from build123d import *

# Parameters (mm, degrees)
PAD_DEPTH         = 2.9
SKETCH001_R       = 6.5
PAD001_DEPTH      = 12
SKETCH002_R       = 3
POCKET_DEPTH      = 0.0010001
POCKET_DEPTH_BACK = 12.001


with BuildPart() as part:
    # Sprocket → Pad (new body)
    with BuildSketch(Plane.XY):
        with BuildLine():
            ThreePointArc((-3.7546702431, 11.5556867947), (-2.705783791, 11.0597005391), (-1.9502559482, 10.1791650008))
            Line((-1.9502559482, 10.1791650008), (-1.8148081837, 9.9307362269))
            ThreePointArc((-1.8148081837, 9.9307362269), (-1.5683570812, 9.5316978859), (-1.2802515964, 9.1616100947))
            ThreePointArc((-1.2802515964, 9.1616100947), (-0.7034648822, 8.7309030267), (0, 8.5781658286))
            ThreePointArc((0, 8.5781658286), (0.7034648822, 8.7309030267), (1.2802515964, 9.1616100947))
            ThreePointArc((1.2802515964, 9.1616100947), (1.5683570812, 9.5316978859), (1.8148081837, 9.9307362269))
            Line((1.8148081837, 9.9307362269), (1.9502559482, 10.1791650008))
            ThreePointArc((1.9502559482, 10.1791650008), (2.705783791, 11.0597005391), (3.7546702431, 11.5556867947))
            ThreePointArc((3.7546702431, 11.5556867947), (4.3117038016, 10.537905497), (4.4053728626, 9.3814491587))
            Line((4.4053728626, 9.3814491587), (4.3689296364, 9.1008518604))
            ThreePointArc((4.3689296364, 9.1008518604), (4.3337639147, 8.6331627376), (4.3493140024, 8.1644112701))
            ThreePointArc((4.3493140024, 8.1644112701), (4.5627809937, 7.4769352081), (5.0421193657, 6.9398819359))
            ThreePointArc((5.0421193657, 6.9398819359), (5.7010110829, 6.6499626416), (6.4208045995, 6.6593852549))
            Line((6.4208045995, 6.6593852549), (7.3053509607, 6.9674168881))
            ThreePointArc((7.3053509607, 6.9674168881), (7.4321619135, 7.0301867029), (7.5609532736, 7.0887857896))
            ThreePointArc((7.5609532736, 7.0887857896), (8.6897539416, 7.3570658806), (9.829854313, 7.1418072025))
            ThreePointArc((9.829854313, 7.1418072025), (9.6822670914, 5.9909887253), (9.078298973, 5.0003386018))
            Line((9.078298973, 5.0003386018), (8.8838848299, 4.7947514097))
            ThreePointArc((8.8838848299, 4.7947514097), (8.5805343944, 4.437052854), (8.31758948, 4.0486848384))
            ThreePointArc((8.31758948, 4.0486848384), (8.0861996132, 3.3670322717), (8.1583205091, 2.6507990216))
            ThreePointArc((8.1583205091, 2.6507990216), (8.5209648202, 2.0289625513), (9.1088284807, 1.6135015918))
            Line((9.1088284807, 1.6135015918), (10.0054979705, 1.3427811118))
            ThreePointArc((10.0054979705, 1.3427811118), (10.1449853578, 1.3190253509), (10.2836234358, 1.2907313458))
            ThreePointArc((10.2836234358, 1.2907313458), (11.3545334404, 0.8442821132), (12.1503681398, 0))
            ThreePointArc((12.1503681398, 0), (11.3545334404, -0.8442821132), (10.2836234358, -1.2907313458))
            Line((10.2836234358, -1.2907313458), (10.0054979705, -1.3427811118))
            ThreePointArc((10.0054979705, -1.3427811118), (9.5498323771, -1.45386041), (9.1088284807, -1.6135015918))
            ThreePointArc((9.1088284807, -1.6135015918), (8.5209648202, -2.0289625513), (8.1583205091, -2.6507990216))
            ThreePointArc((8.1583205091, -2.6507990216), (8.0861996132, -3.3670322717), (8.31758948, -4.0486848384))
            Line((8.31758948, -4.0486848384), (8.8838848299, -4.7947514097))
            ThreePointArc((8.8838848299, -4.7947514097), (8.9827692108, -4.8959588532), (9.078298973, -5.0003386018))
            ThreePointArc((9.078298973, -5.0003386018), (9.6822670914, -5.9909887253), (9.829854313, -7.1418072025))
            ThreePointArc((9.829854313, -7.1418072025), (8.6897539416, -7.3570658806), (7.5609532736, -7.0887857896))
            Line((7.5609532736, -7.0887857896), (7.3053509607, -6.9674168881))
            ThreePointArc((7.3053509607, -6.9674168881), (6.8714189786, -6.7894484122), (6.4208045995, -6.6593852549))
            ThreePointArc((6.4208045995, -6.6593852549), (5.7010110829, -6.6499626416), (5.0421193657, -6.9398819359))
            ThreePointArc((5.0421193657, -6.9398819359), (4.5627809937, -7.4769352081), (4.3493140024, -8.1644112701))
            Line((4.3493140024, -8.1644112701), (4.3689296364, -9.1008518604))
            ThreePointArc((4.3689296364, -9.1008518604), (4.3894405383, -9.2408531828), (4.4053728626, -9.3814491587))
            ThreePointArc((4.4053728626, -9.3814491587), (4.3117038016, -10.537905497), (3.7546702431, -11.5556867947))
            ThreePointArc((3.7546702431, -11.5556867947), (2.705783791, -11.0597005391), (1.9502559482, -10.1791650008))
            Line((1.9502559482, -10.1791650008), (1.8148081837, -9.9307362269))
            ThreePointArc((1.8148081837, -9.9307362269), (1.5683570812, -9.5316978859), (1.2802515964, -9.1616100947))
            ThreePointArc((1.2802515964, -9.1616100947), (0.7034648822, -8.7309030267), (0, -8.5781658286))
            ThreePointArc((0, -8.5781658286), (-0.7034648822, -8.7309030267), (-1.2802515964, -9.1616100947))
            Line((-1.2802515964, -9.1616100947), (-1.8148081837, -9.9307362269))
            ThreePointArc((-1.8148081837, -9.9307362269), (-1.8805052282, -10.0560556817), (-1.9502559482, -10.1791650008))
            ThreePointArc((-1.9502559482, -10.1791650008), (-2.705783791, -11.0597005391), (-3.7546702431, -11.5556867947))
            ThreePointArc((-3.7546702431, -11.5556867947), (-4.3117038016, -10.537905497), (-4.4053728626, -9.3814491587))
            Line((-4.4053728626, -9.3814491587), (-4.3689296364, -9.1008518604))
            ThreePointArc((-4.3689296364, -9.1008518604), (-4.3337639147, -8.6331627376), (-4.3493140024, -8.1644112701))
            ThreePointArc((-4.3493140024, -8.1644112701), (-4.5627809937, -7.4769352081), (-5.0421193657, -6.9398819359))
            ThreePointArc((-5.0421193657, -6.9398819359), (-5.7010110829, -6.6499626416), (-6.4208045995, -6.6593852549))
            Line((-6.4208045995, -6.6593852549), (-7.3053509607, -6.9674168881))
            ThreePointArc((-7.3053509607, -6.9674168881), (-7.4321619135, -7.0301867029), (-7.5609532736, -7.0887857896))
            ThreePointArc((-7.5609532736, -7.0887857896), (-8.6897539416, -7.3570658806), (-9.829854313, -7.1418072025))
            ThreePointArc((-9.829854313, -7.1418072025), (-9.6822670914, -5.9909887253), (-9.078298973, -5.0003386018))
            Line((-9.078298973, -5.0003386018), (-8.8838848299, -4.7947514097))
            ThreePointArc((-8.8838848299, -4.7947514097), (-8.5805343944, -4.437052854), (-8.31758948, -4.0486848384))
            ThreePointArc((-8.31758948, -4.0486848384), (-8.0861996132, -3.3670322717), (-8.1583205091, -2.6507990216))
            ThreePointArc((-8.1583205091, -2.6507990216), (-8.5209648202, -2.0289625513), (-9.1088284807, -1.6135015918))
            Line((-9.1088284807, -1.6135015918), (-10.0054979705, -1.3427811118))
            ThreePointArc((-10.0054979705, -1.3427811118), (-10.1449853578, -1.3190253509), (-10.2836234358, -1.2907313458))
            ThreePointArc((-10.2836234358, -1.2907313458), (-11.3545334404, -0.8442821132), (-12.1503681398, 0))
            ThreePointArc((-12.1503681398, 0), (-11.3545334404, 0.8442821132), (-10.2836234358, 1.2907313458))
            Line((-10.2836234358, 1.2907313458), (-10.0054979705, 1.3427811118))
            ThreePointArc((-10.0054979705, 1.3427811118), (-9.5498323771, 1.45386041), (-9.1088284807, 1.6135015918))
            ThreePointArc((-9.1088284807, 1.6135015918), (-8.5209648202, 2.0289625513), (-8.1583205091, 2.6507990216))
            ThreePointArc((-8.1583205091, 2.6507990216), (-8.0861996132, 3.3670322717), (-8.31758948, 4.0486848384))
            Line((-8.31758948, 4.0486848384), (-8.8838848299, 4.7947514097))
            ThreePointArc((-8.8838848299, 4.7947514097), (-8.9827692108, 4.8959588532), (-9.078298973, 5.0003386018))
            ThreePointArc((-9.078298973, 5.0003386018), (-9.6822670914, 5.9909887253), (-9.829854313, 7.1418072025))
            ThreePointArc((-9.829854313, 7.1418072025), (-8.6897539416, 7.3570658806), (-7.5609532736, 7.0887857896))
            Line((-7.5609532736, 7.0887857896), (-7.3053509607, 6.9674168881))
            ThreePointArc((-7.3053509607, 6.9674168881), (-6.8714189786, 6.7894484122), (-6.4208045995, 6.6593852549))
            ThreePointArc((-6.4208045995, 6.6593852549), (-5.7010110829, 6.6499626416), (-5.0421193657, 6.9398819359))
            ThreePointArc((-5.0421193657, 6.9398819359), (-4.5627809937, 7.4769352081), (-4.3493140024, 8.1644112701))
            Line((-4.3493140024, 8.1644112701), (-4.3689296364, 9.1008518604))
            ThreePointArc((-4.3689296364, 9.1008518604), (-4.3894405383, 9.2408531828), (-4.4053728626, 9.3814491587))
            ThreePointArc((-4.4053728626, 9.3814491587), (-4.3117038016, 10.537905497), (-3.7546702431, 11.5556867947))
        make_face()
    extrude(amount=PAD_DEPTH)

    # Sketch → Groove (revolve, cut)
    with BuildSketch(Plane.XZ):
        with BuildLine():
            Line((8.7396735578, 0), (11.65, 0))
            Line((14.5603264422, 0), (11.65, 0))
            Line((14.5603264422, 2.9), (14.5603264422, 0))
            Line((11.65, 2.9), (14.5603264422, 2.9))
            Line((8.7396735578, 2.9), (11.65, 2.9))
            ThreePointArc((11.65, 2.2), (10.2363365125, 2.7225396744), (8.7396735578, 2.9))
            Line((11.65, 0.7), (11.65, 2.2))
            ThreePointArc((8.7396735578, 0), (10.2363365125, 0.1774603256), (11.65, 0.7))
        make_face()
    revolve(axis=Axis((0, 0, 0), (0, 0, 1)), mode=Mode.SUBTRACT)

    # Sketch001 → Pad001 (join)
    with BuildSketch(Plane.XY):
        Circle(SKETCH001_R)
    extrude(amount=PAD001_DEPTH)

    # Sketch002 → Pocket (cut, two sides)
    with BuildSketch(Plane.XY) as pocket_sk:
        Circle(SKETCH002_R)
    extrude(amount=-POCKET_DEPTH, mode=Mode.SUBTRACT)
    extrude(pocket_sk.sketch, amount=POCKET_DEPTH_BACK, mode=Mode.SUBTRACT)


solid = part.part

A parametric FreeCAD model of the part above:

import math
import FreeCAD as App
import Part
import Sketcher
from FreeCAD import Vector
Q = App.Units.Quantity

doc = App.newDocument("Part")
body = doc.addObject("PartDesign::Body", "Body")

sketch1 = doc.addObject("Sketcher::SketchObject", "Sketch")
body.addObject(sketch1)
sketch1.AttachmentSupport = (doc.XY_Plane, [""])
sketch1.MapMode = "FlatFace"
sketch1.addGeometry(Part.ArcOfCircle(Part.Circle(Vector(-4.39, 8.85, 0), Vector(0, 0, 1), 2.78), math.radians(29), math.radians(77)), False)
sketch1.addGeometry(Part.ArcOfCircle(Part.Circle(Vector(-1.65, 9.74, 0), Vector(0, 0, 1), 2.78), math.radians(139), math.radians(187)), False)
sketch1.addGeometry(Part.ArcOfCircle(Part.Circle(Vector(-0.09, 9.8, 0), Vector(0, 0, 1), 4.34), math.radians(-174.47), math.radians(-170.73)), False)
sketch1.addGeometry(Part.LineSegment(Vector(-4.37, 9.1, 0), Vector(-4.35, 8.16, 0)), False)
sketch1.addGeometry(Part.ArcOfCircle(Part.Circle(Vector(-6.04, 8.31, 0), Vector(0, 0, 1), 1.7), math.radians(-54), math.radians(-5)), False)
sketch1.addGeometry(Part.ArcOfCircle(Part.Circle(Vector(-6.04, 8.31, 0), Vector(0, 0, 1), 1.7), math.radians(-103), math.radians(-54)), False)
sketch1.addGeometry(Part.ArcOfCircle(Part.Circle(Vector(-5.45, 10.88, 0), Vector(0, 0, 1), 4.34), math.radians(-115.4), math.radians(-103)), False)
sketch1.addGeometry(Part.LineSegment(Vector(-7.31, 6.97, 0), Vector(-7.56, 7.09, 0)), False)
sketch1.addGeometry(Part.ArcOfCircle(Part.Circle(Vector(-8.75, 4.57, 0), Vector(0, 0, 1), 2.78), math.radians(65), math.radians(113)), False)
sketch1.addGeometry(Part.ArcOfCircle(Part.Circle(Vector(-7.06, 6.91, 0), Vector(0, 0, 1), 2.78), math.radians(175), math.radians(223)), False)
sketch1.addGeometry(Part.ArcOfCircle(Part.Circle(Vector(-5.83, 7.88, 0), Vector(0, 0, 1), 4.34), math.radians(-138.47), math.radians(-134.73)), False)
sketch1.addGeometry(Part.LineSegment(Vector(-8.88, 4.79, 0), Vector(-8.32, 4.05, 0)), False)
sketch1.addGeometry(Part.ArcOfCircle(Part.Circle(Vector(-9.77, 3.17, 0), Vector(0, 0, 1), 1.7), math.radians(-18), math.radians(31)), False)
sketch1.addGeometry(Part.ArcOfCircle(Part.Circle(Vector(-9.77, 3.17, 0), Vector(0, 0, 1), 1.7), math.radians(-67), math.radians(-18)), False)
sketch1.addGeometry(Part.ArcOfCircle(Part.Circle(Vector(-10.8, 5.61, 0), Vector(0, 0, 1), 4.34), math.radians(-79.4), math.radians(-67)), False)
sketch1.addGeometry(Part.LineSegment(Vector(-10.01, 1.34, 0), Vector(-10.28, 1.29, 0)), False)
sketch1.addGeometry(Part.ArcOfCircle(Part.Circle(Vector(-9.77, -1.45, 0), Vector(0, 0, 1), 2.78), math.radians(101), math.radians(149)), False)
sketch1.addGeometry(Part.ArcOfCircle(Part.Circle(Vector(-9.77, 1.45, 0), Vector(0, 0, 1), 2.78), math.radians(-149), math.radians(-101)), False)
sketch1.addGeometry(Part.ArcOfCircle(Part.Circle(Vector(-9.35, 2.94, 0), Vector(0, 0, 1), 4.34), math.radians(-102.47), math.radians(-98.73)), False)
sketch1.addGeometry(Part.LineSegment(Vector(-10.01, -1.34, 0), Vector(-9.11, -1.61, 0)), False)
sketch1.addGeometry(Part.ArcOfCircle(Part.Circle(Vector(-9.77, -3.17, 0), Vector(0, 0, 1), 1.7), math.radians(18), math.radians(67)), False)
sketch1.addGeometry(Part.ArcOfCircle(Part.Circle(Vector(-9.77, -3.17, 0), Vector(0, 0, 1), 1.7), math.radians(-31), math.radians(18)), False)
sketch1.addGeometry(Part.ArcOfCircle(Part.Circle(Vector(-12.03, -1.82, 0), Vector(0, 0, 1), 4.34), math.radians(-43.4), math.radians(-31)), False)
sketch1.addGeometry(Part.LineSegment(Vector(-8.88, -4.79, 0), Vector(-9.08, -5, 0)), False)
sketch1.addGeometry(Part.ArcOfCircle(Part.Circle(Vector(-7.06, -6.91, 0), Vector(0, 0, 1), 2.78), math.radians(137), math.radians(185)), False)
sketch1.addGeometry(Part.ArcOfCircle(Part.Circle(Vector(-8.75, -4.57, 0), Vector(0, 0, 1), 2.78), math.radians(-113), math.radians(-65)), False)
sketch1.addGeometry(Part.ArcOfCircle(Part.Circle(Vector(-9.29, -3.11, 0), Vector(0, 0, 1), 4.34), math.radians(-66.47), math.radians(-62.73)), False)
sketch1.addGeometry(Part.LineSegment(Vector(-7.31, -6.97, 0), Vector(-6.42, -6.66, 0)), False)
sketch1.addGeometry(Part.ArcOfCircle(Part.Circle(Vector(-6.04, -8.31, 0), Vector(0, 0, 1), 1.7), math.radians(54), math.radians(103)), False)
sketch1.addGeometry(Part.ArcOfCircle(Part.Circle(Vector(-6.04, -8.31, 0), Vector(0, 0, 1), 1.7), math.radians(5), math.radians(54)), False)
sketch1.addGeometry(Part.ArcOfCircle(Part.Circle(Vector(-8.67, -8.54, 0), Vector(0, 0, 1), 4.34), math.radians(-7.4), math.radians(5)), False)
sketch1.addGeometry(Part.LineSegment(Vector(-4.37, -9.1, 0), Vector(-4.41, -9.38, 0)), False)
sketch1.addGeometry(Part.ArcOfCircle(Part.Circle(Vector(-1.65, -9.74, 0), Vector(0, 0, 1), 2.78), math.radians(173), math.radians(221)), False)
sketch1.addGeometry(Part.ArcOfCircle(Part.Circle(Vector(-4.39, -8.85, 0), Vector(0, 0, 1), 2.78), math.radians(-77), math.radians(-29)), False)
sketch1.addGeometry(Part.ArcOfCircle(Part.Circle(Vector(-5.69, -7.98, 0), Vector(0, 0, 1), 4.34), math.radians(-30.47), math.radians(-26.73)), False)
sketch1.addGeometry(Part.LineSegment(Vector(-1.81, -9.93, 0), Vector(-1.28, -9.16, 0)), False)
sketch1.addGeometry(Part.ArcOfCircle(Part.Circle(Vector(0, -10.27, 0), Vector(0, 0, 1), 1.7), math.radians(90), math.radians(139)), False)
sketch1.addGeometry(Part.ArcOfCircle(Part.Circle(Vector(0, -10.27, 0), Vector(0, 0, 1), 1.7), math.radians(41), math.radians(90)), False)
sketch1.addGeometry(Part.ArcOfCircle(Part.Circle(Vector(-1.99, -12.01, 0), Vector(0, 0, 1), 4.34), math.radians(28.6), math.radians(41)), False)
sketch1.addGeometry(Part.LineSegment(Vector(1.81, -9.93, 0), Vector(1.95, -10.18, 0)), False)
sketch1.addGeometry(Part.ArcOfCircle(Part.Circle(Vector(4.39, -8.85, 0), Vector(0, 0, 1), 2.78), math.radians(-151), math.radians(-103)), False)
sketch1.addGeometry(Part.ArcOfCircle(Part.Circle(Vector(1.65, -9.74, 0), Vector(0, 0, 1), 2.78), math.radians(-41), math.radians(7)), False)
sketch1.addGeometry(Part.ArcOfCircle(Part.Circle(Vector(0.09, -9.8, 0), Vector(0, 0, 1), 4.34), math.radians(5.53), math.radians(9.27)), False)
sketch1.addGeometry(Part.LineSegment(Vector(4.37, -9.1, 0), Vector(4.35, -8.16, 0)), False)
sketch1.addGeometry(Part.ArcOfCircle(Part.Circle(Vector(6.04, -8.31, 0), Vector(0, 0, 1), 1.7), math.radians(126), math.radians(175)), False)
sketch1.addGeometry(Part.ArcOfCircle(Part.Circle(Vector(6.04, -8.31, 0), Vector(0, 0, 1), 1.7), math.radians(77), math.radians(126)), False)
sketch1.addGeometry(Part.ArcOfCircle(Part.Circle(Vector(5.45, -10.88, 0), Vector(0, 0, 1), 4.34), math.radians(64.6), math.radians(77)), False)
sketch1.addGeometry(Part.LineSegment(Vector(7.31, -6.97, 0), Vector(7.56, -7.09, 0)), False)
sketch1.addGeometry(Part.ArcOfCircle(Part.Circle(Vector(8.75, -4.57, 0), Vector(0, 0, 1), 2.78), math.radians(-115), math.radians(-67)), False)
sketch1.addGeometry(Part.ArcOfCircle(Part.Circle(Vector(7.06, -6.91, 0), Vector(0, 0, 1), 2.78), math.radians(-5), math.radians(43)), False)
sketch1.addGeometry(Part.ArcOfCircle(Part.Circle(Vector(5.83, -7.88, 0), Vector(0, 0, 1), 4.34), math.radians(41.53), math.radians(45.27)), False)
sketch1.addGeometry(Part.LineSegment(Vector(8.88, -4.79, 0), Vector(8.32, -4.05, 0)), False)
sketch1.addGeometry(Part.ArcOfCircle(Part.Circle(Vector(9.77, -3.17, 0), Vector(0, 0, 1), 1.7), math.radians(162), math.radians(211)), False)
sketch1.addGeometry(Part.ArcOfCircle(Part.Circle(Vector(9.77, -3.17, 0), Vector(0, 0, 1), 1.7), math.radians(113), math.radians(162)), False)
sketch1.addGeometry(Part.ArcOfCircle(Part.Circle(Vector(10.8, -5.61, 0), Vector(0, 0, 1), 4.34), math.radians(100.6), math.radians(113)), False)
sketch1.addGeometry(Part.LineSegment(Vector(10.01, -1.34, 0), Vector(10.28, -1.29, 0)), False)
sketch1.addGeometry(Part.ArcOfCircle(Part.Circle(Vector(9.77, 1.45, 0), Vector(0, 0, 1), 2.78), math.radians(-79), math.radians(-31)), False)
sketch1.addGeometry(Part.ArcOfCircle(Part.Circle(Vector(9.77, -1.45, 0), Vector(0, 0, 1), 2.78), math.radians(31), math.radians(79)), False)
sketch1.addGeometry(Part.ArcOfCircle(Part.Circle(Vector(9.35, -2.94, 0), Vector(0, 0, 1), 4.34), math.radians(77.53), math.radians(81.27)), False)
sketch1.addGeometry(Part.LineSegment(Vector(10.01, 1.34, 0), Vector(9.11, 1.61, 0)), False)
sketch1.addGeometry(Part.ArcOfCircle(Part.Circle(Vector(9.77, 3.17, 0), Vector(0, 0, 1), 1.7), math.radians(-162), math.radians(-113)), False)
sketch1.addGeometry(Part.ArcOfCircle(Part.Circle(Vector(9.77, 3.17, 0), Vector(0, 0, 1), 1.7), math.radians(149), math.radians(198)), False)
sketch1.addGeometry(Part.ArcOfCircle(Part.Circle(Vector(12.03, 1.82, 0), Vector(0, 0, 1), 4.34), math.radians(136.6), math.radians(149)), False)
sketch1.addGeometry(Part.LineSegment(Vector(8.88, 4.79, 0), Vector(9.08, 5, 0)), False)
sketch1.addGeometry(Part.ArcOfCircle(Part.Circle(Vector(7.06, 6.91, 0), Vector(0, 0, 1), 2.78), math.radians(-43), math.radians(5)), False)
sketch1.addGeometry(Part.ArcOfCircle(Part.Circle(Vector(8.75, 4.57, 0), Vector(0, 0, 1), 2.78), math.radians(67), math.radians(115)), False)
sketch1.addGeometry(Part.ArcOfCircle(Part.Circle(Vector(9.29, 3.11, 0), Vector(0, 0, 1), 4.34), math.radians(113.53), math.radians(117.27)), False)
sketch1.addGeometry(Part.LineSegment(Vector(7.31, 6.97, 0), Vector(6.42, 6.66, 0)), False)
sketch1.addGeometry(Part.ArcOfCircle(Part.Circle(Vector(6.04, 8.31, 0), Vector(0, 0, 1), 1.7), math.radians(-126), math.radians(-77)), False)
sketch1.addGeometry(Part.ArcOfCircle(Part.Circle(Vector(6.04, 8.31, 0), Vector(0, 0, 1), 1.7), math.radians(-175), math.radians(-126)), False)
sketch1.addGeometry(Part.ArcOfCircle(Part.Circle(Vector(8.67, 8.54, 0), Vector(0, 0, 1), 4.34), math.radians(172.6), math.radians(185)), False)
sketch1.addGeometry(Part.LineSegment(Vector(4.37, 9.1, 0), Vector(4.41, 9.38, 0)), False)
sketch1.addGeometry(Part.ArcOfCircle(Part.Circle(Vector(1.65, 9.74, 0), Vector(0, 0, 1), 2.78), math.radians(-7), math.radians(41)), False)
sketch1.addGeometry(Part.ArcOfCircle(Part.Circle(Vector(4.39, 8.85, 0), Vector(0, 0, 1), 2.78), math.radians(103), math.radians(151)), False)
sketch1.addGeometry(Part.LineSegment(Vector(1.95, 10.18, 0), Vector(1.81, 9.93, 0)), False)
sketch1.addGeometry(Part.ArcOfCircle(Part.Circle(Vector(-1.99, 12.01, 0), Vector(0, 0, 1), 4.34), math.radians(-41), math.radians(-28.6)), False)
sketch1.addGeometry(Part.ArcOfCircle(Part.Circle(Vector(0, 10.27, 0), Vector(0, 0, 1), 1.7), math.radians(-90), math.radians(-41)), False)
sketch1.addGeometry(Part.ArcOfCircle(Part.Circle(Vector(0, 10.27, 0), Vector(0, 0, 1), 1.7), math.radians(-139), math.radians(-90)), False)
sketch1.addGeometry(Part.ArcOfCircle(Part.Circle(Vector(1.99, 12.01, 0), Vector(0, 0, 1), 4.34), math.radians(-151.4), math.radians(-139)), False)
sketch1.addGeometry(Part.LineSegment(Vector(-1.81, 9.93, 0), Vector(-1.95, 10.18, 0)), False)
sketch1.addConstraint(Sketcher.Constraint("Coincident", 0, 2, 1, 1))
sketch1.addConstraint(Sketcher.Constraint("Coincident", 1, 2, 2, 1))
sketch1.addConstraint(Sketcher.Constraint("Coincident", 2, 2, 3, 1))
sketch1.addConstraint(Sketcher.Constraint("Coincident", 3, 2, 4, 2))
sketch1.addConstraint(Sketcher.Constraint("Tangent", 4, 1, 5, 2))
sketch1.addConstraint(Sketcher.Constraint("Tangent", 5, 1, 6, 2))
sketch1.addConstraint(Sketcher.Constraint("Tangent", 6, 1, 7, 1))
sketch1.addConstraint(Sketcher.Constraint("Tangent", 7, 2, 8, 1))
sketch1.addConstraint(Sketcher.Constraint("Coincident", 8, 2, 9, 1))
sketch1.addConstraint(Sketcher.Constraint("Coincident", 9, 2, 10, 1))
sketch1.addConstraint(Sketcher.Constraint("Coincident", 10, 2, 11, 1))
sketch1.addConstraint(Sketcher.Constraint("Coincident", 11, 2, 12, 2))
sketch1.addConstraint(Sketcher.Constraint("Tangent", 12, 1, 13, 2))
sketch1.addConstraint(Sketcher.Constraint("Tangent", 13, 1, 14, 2))
sketch1.addConstraint(Sketcher.Constraint("Tangent", 14, 1, 15, 1))
sketch1.addConstraint(Sketcher.Constraint("Tangent", 15, 2, 16, 1))
sketch1.addConstraint(Sketcher.Constraint("Coincident", 16, 2, 17, 1))
sketch1.addConstraint(Sketcher.Constraint("Coincident", 17, 2, 18, 1))
sketch1.addConstraint(Sketcher.Constraint("Coincident", 18, 2, 19, 1))
sketch1.addConstraint(Sketcher.Constraint("Coincident", 19, 2, 20, 2))
sketch1.addConstraint(Sketcher.Constraint("Tangent", 20, 1, 21, 2))
sketch1.addConstraint(Sketcher.Constraint("Tangent", 21, 1, 22, 2))
sketch1.addConstraint(Sketcher.Constraint("Tangent", 22, 1, 23, 1))
sketch1.addConstraint(Sketcher.Constraint("Tangent", 23, 2, 24, 1))
sketch1.addConstraint(Sketcher.Constraint("Coincident", 24, 2, 25, 1))
sketch1.addConstraint(Sketcher.Constraint("Coincident", 25, 2, 26, 1))
sketch1.addConstraint(Sketcher.Constraint("Coincident", 26, 2, 27, 1))
sketch1.addConstraint(Sketcher.Constraint("Coincident", 27, 2, 28, 2))
sketch1.addConstraint(Sketcher.Constraint("Tangent", 28, 1, 29, 2))
sketch1.addConstraint(Sketcher.Constraint("Tangent", 29, 1, 30, 2))
sketch1.addConstraint(Sketcher.Constraint("Tangent", 30, 1, 31, 1))
sketch1.addConstraint(Sketcher.Constraint("Tangent", 31, 2, 32, 1))
sketch1.addConstraint(Sketcher.Constraint("Coincident", 32, 2, 33, 1))
sketch1.addConstraint(Sketcher.Constraint("Coincident", 33, 2, 34, 1))
sketch1.addConstraint(Sketcher.Constraint("Coincident", 34, 2, 35, 1))
sketch1.addConstraint(Sketcher.Constraint("Coincident", 35, 2, 36, 2))
sketch1.addConstraint(Sketcher.Constraint("Tangent", 36, 1, 37, 2))
sketch1.addConstraint(Sketcher.Constraint("Tangent", 37, 1, 38, 2))
sketch1.addConstraint(Sketcher.Constraint("Tangent", 38, 1, 39, 1))
sketch1.addConstraint(Sketcher.Constraint("Tangent", 39, 2, 40, 1))
sketch1.addConstraint(Sketcher.Constraint("Coincident", 40, 2, 41, 1))
sketch1.addConstraint(Sketcher.Constraint("Coincident", 41, 2, 42, 1))
sketch1.addConstraint(Sketcher.Constraint("Coincident", 42, 2, 43, 1))
sketch1.addConstraint(Sketcher.Constraint("Coincident", 43, 2, 44, 2))
sketch1.addConstraint(Sketcher.Constraint("Tangent", 44, 1, 45, 2))
sketch1.addConstraint(Sketcher.Constraint("Tangent", 45, 1, 46, 2))
sketch1.addConstraint(Sketcher.Constraint("Tangent", 46, 1, 47, 1))
sketch1.addConstraint(Sketcher.Constraint("Tangent", 47, 2, 48, 1))
sketch1.addConstraint(Sketcher.Constraint("Coincident", 48, 2, 49, 1))
sketch1.addConstraint(Sketcher.Constraint("Coincident", 49, 2, 50, 1))
sketch1.addConstraint(Sketcher.Constraint("Coincident", 50, 2, 51, 1))
sketch1.addConstraint(Sketcher.Constraint("Coincident", 51, 2, 52, 2))
sketch1.addConstraint(Sketcher.Constraint("Tangent", 52, 1, 53, 2))
sketch1.addConstraint(Sketcher.Constraint("Tangent", 53, 1, 54, 2))
sketch1.addConstraint(Sketcher.Constraint("Tangent", 54, 1, 55, 1))
sketch1.addConstraint(Sketcher.Constraint("Tangent", 55, 2, 56, 1))
sketch1.addConstraint(Sketcher.Constraint("Coincident", 56, 2, 57, 1))
sketch1.addConstraint(Sketcher.Constraint("Coincident", 57, 2, 58, 1))
sketch1.addConstraint(Sketcher.Constraint("Coincident", 58, 2, 59, 1))
sketch1.addConstraint(Sketcher.Constraint("Coincident", 59, 2, 60, 2))
sketch1.addConstraint(Sketcher.Constraint("Tangent", 60, 1, 61, 2))
sketch1.addConstraint(Sketcher.Constraint("Tangent", 61, 1, 62, 2))
sketch1.addConstraint(Sketcher.Constraint("Tangent", 62, 1, 63, 1))
sketch1.addConstraint(Sketcher.Constraint("Tangent", 63, 2, 64, 1))
sketch1.addConstraint(Sketcher.Constraint("Coincident", 64, 2, 65, 1))
sketch1.addConstraint(Sketcher.Constraint("Coincident", 65, 2, 66, 1))
sketch1.addConstraint(Sketcher.Constraint("Coincident", 66, 2, 67, 1))
sketch1.addConstraint(Sketcher.Constraint("Coincident", 67, 2, 68, 2))
sketch1.addConstraint(Sketcher.Constraint("Tangent", 68, 1, 69, 2))
sketch1.addConstraint(Sketcher.Constraint("Tangent", 69, 1, 70, 2))
sketch1.addConstraint(Sketcher.Constraint("Tangent", 70, 1, 71, 1))
sketch1.addConstraint(Sketcher.Constraint("Tangent", 71, 2, 72, 1))
sketch1.addConstraint(Sketcher.Constraint("Coincident", 72, 2, 73, 1))
sketch1.addConstraint(Sketcher.Constraint("Tangent", 73, 2, 74, 1))
sketch1.addConstraint(Sketcher.Constraint("Tangent", 74, 2, 75, 2))
sketch1.addConstraint(Sketcher.Constraint("Tangent", 75, 1, 76, 2))
sketch1.addConstraint(Sketcher.Constraint("Tangent", 76, 1, 77, 2))
sketch1.addConstraint(Sketcher.Constraint("Tangent", 77, 1, 78, 2))
sketch1.addConstraint(Sketcher.Constraint("Tangent", 78, 1, 79, 1))
sketch1.addConstraint(Sketcher.Constraint("Tangent", 79, 2, 0, 1))
sketch1.addConstraint(Sketcher.Constraint("Equal", 0, 1))
sketch1.addConstraint(Sketcher.Constraint("Equal", 4, 5))
sketch1.addConstraint(Sketcher.Constraint("Equal", 2, 6))
sketch1.addConstraint(Sketcher.Constraint("Equal", 1, 8))
sketch1.addConstraint(Sketcher.Constraint("Equal", 8, 9))
sketch1.addConstraint(Sketcher.Constraint("Equal", 6, 10))
sketch1.addConstraint(Sketcher.Constraint("Equal", 5, 12))
sketch1.addConstraint(Sketcher.Constraint("Equal", 12, 13))
sketch1.addConstraint(Sketcher.Constraint("Equal", 10, 14))
sketch1.addConstraint(Sketcher.Constraint("Equal", 9, 16))
sketch1.addConstraint(Sketcher.Constraint("Equal", 16, 17))
sketch1.addConstraint(Sketcher.Constraint("Equal", 14, 18))
sketch1.addConstraint(Sketcher.Constraint("Equal", 13, 20))
sketch1.addConstraint(Sketcher.Constraint("Equal", 20, 21))
sketch1.addConstraint(Sketcher.Constraint("Equal", 18, 22))
sketch1.addConstraint(Sketcher.Constraint("Equal", 17, 24))
sketch1.addConstraint(Sketcher.Constraint("Equal", 24, 25))
sketch1.addConstraint(Sketcher.Constraint("Equal", 22, 26))
sketch1.addConstraint(Sketcher.Constraint("Equal", 21, 28))
sketch1.addConstraint(Sketcher.Constraint("Equal", 28, 29))
sketch1.addConstraint(Sketcher.Constraint("Equal", 26, 30))
sketch1.addConstraint(Sketcher.Constraint("Equal", 25, 32))
sketch1.addConstraint(Sketcher.Constraint("Equal", 32, 33))
sketch1.addConstraint(Sketcher.Constraint("Equal", 30, 34))
sketch1.addConstraint(Sketcher.Constraint("Equal", 29, 36))
sketch1.addConstraint(Sketcher.Constraint("Equal", 36, 37))
sketch1.addConstraint(Sketcher.Constraint("Equal", 34, 38))
sketch1.addConstraint(Sketcher.Constraint("Equal", 33, 40))
sketch1.addConstraint(Sketcher.Constraint("Equal", 40, 41))
sketch1.addConstraint(Sketcher.Constraint("Equal", 38, 42))
sketch1.addConstraint(Sketcher.Constraint("Equal", 37, 44))
sketch1.addConstraint(Sketcher.Constraint("Equal", 44, 45))
sketch1.addConstraint(Sketcher.Constraint("Equal", 42, 46))
sketch1.addConstraint(Sketcher.Constraint("Equal", 41, 48))
sketch1.addConstraint(Sketcher.Constraint("Equal", 48, 49))
sketch1.addConstraint(Sketcher.Constraint("Equal", 46, 50))
sketch1.addConstraint(Sketcher.Constraint("Equal", 45, 52))
sketch1.addConstraint(Sketcher.Constraint("Equal", 52, 53))
sketch1.addConstraint(Sketcher.Constraint("Equal", 50, 54))
sketch1.addConstraint(Sketcher.Constraint("Equal", 49, 56))
sketch1.addConstraint(Sketcher.Constraint("Equal", 56, 57))
sketch1.addConstraint(Sketcher.Constraint("Equal", 54, 58))
sketch1.addConstraint(Sketcher.Constraint("Equal", 53, 60))
sketch1.addConstraint(Sketcher.Constraint("Equal", 60, 61))
sketch1.addConstraint(Sketcher.Constraint("Equal", 58, 62))
sketch1.addConstraint(Sketcher.Constraint("Equal", 57, 64))
sketch1.addConstraint(Sketcher.Constraint("Equal", 64, 65))
sketch1.addConstraint(Sketcher.Constraint("Equal", 62, 66))
sketch1.addConstraint(Sketcher.Constraint("Equal", 61, 68))
sketch1.addConstraint(Sketcher.Constraint("Equal", 68, 69))
sketch1.addConstraint(Sketcher.Constraint("Equal", 66, 70))
sketch1.addConstraint(Sketcher.Constraint("Equal", 65, 72))
sketch1.addConstraint(Sketcher.Constraint("Equal", 72, 73))
sketch1.addConstraint(Sketcher.Constraint("Equal", 70, 75))
sketch1.addConstraint(Sketcher.Constraint("Equal", 69, 76))
sketch1.addConstraint(Sketcher.Constraint("Equal", 76, 77))
sketch1.addConstraint(Sketcher.Constraint("Equal", 75, 78))
sketch1.addConstraint(Sketcher.Constraint("Symmetric", 0, 3, 40, 3, -1, 1))
sketch1.addConstraint(Sketcher.Constraint("Symmetric", 1, 3, 41, 3, -1, 1))
sketch1.addConstraint(Sketcher.Constraint("Symmetric", 2, 3, 42, 3, -1, 1))
sketch1.addConstraint(Sketcher.Constraint("Symmetric", 4, 3, 44, 3, -1, 1))
sketch1.addConstraint(Sketcher.Constraint("Symmetric", 8, 3, 48, 3, -1, 1))
sketch1.addConstraint(Sketcher.Constraint("Symmetric", 9, 3, 49, 3, -1, 1))
sketch1.addConstraint(Sketcher.Constraint("Symmetric", 10, 3, 50, 3, -1, 1))
sketch1.addConstraint(Sketcher.Constraint("Symmetric", 12, 3, 52, 3, -1, 1))
sketch1.addConstraint(Sketcher.Constraint("Symmetric", 16, 3, 56, 3, -1, 1))
sketch1.addConstraint(Sketcher.Constraint("Symmetric", 17, 3, 57, 3, -1, 1))
sketch1.addConstraint(Sketcher.Constraint("Symmetric", 18, 3, 58, 3, -1, 1))
sketch1.addConstraint(Sketcher.Constraint("Symmetric", 20, 3, 60, 3, -1, 1))
sketch1.addConstraint(Sketcher.Constraint("Symmetric", 24, 3, 64, 3, -1, 1))
sketch1.addConstraint(Sketcher.Constraint("Symmetric", 25, 3, 65, 3, -1, 1))
sketch1.addConstraint(Sketcher.Constraint("Symmetric", 26, 3, 66, 3, -1, 1))
sketch1.addConstraint(Sketcher.Constraint("Symmetric", 28, 3, 68, 3, -1, 1))
sketch1.addConstraint(Sketcher.Constraint("Symmetric", 32, 3, 72, 3, -1, 1))
sketch1.addConstraint(Sketcher.Constraint("Symmetric", 33, 3, 73, 3, -1, 1))
sketch1.addConstraint(Sketcher.Constraint("Symmetric", 36, 3, 76, 3, -1, 1))
sketch1.addConstraint(Sketcher.Constraint("Symmetric", 34, 2, 74, 2, -1, 1))
sketch1.addConstraint(Sketcher.Constraint("Symmetric", 33, 3, 40, 3, -2))
sketch1.addConstraint(Sketcher.Constraint("Symmetric", 32, 3, 41, 3, -2))
sketch1.addConstraint(Sketcher.Constraint("Symmetric", 28, 3, 44, 3, -2))
sketch1.addConstraint(Sketcher.Constraint("Symmetric", 25, 3, 48, 3, -2))
sketch1.addConstraint(Sketcher.Constraint("Symmetric", 24, 3, 49, 3, -2))
sketch1.addConstraint(Sketcher.Constraint("Symmetric", 20, 3, 52, 3, -2))
sketch1.addConstraint(Sketcher.Constraint("Symmetric", 17, 3, 56, 3, -2))
sketch1.addConstraint(Sketcher.Constraint("Symmetric", 75, 3, 78, 3, -2))
sketch1.addConstraint(Sketcher.Constraint("Symmetric", 30, 1, 42, 2, -2))
sketch1.addConstraint(Sketcher.Constraint("Symmetric", 26, 2, 46, 1, -2))
sketch1.addConstraint(Sketcher.Constraint("Symmetric", 22, 1, 50, 2, -2))
sketch1.addConstraint(Sketcher.Constraint("Symmetric", 18, 2, 54, 1, -2))
sketch1.addConstraint(Sketcher.Constraint("Symmetric", 14, 1, 58, 2, -2))
sketch1.addConstraint(Sketcher.Constraint("Symmetric", 10, 2, 62, 1, -2))
sketch1.addConstraint(Sketcher.Constraint("Symmetric", 6, 1, 66, 2, -2))
sketch1.addConstraint(Sketcher.Constraint("Symmetric", 2, 2, 70, 1, -2))
sketch1.addConstraint(Sketcher.Constraint("PointOnObject", 36, 1, -2))
sketch1.addConstraint(Sketcher.Constraint("PointOnObject", 76, 1, -2))
sketch1.addConstraint(Sketcher.Constraint("Parallel", 3, 43))
sketch1.addConstraint(Sketcher.Constraint("Parallel", 11, 51))
sketch1.addConstraint(Sketcher.Constraint("Parallel", 19, 59))
sketch1.addConstraint(Sketcher.Constraint("Parallel", 27, 67))
sketch1.addConstraint(Sketcher.Constraint("Parallel", 39, 79))
sketch1.addConstraint(Sketcher.Constraint("Horizontal", 35, 2, 37, 1))
sketch1.addConstraint(Sketcher.Constraint("Horizontal", 33, 2, 39, 2))
sketch1.addConstraint(Sketcher.Constraint("Horizontal", 31, 2, 41, 2))
sketch1.addConstraint(Sketcher.Constraint("Horizontal", 29, 1, 43, 2))
sketch1.addConstraint(Sketcher.Constraint("Horizontal", 28, 1, 44, 1))
sketch1.addConstraint(Sketcher.Constraint("Horizontal", 27, 2, 45, 1))
sketch1.addConstraint(Sketcher.Constraint("Horizontal", 25, 2, 47, 2))
sketch1.addConstraint(Sketcher.Constraint("Horizontal", 23, 2, 49, 2))
sketch1.addConstraint(Sketcher.Constraint("Horizontal", 21, 1, 51, 2))
sketch1.addConstraint(Sketcher.Constraint("Horizontal", 20, 1, 52, 1))
sketch1.addConstraint(Sketcher.Constraint("Horizontal", 19, 2, 53, 1))
sketch1.addConstraint(Sketcher.Constraint("Horizontal", 17, 2, 55, 2))
sketch1.addConstraint(Sketcher.Constraint("Horizontal", 12, 1, 60, 1))
sketch1.addConstraint(Sketcher.Constraint("Horizontal", 4, 1, 68, 1))
sketch1.addConstraint(Sketcher.Constraint("Vertical", 13, 3, 16, 3))
sketch1.addConstraint(Sketcher.Constraint("Vertical", 12, 1, 20, 1))
sketch1.addConstraint(Sketcher.Constraint("Vertical", 4, 1, 28, 1))
sketch1.addConstraint(Sketcher.Constraint("Equal", 3, 11))
sketch1.addConstraint(Sketcher.Constraint("Equal", 7, 15))
sketch1.addConstraint(Sketcher.Constraint("Equal", 11, 19))
sketch1.addConstraint(Sketcher.Constraint("Equal", 15, 23))
sketch1.addConstraint(Sketcher.Constraint("Equal", 19, 27))
sketch1.addConstraint(Sketcher.Constraint("Equal", 23, 31))
sketch1.addConstraint(Sketcher.Constraint("Equal", 27, 35))
sketch1.addConstraint(Sketcher.Constraint("Equal", 31, 39))
sketch1.addConstraint(Sketcher.Constraint("Angle", 3, Q("-88.8 deg")))
sketch1.addConstraint(Sketcher.Constraint("Angle", 7, Q("154.6 deg")))
sketch1.addConstraint(Sketcher.Constraint("Angle", 11, Q("-52.8 deg")))
sketch1.addConstraint(Sketcher.Constraint("Angle", 15, Q("-169.4 deg")))
sketch1.addConstraint(Sketcher.Constraint("Angle", 19, Q("-16.8 deg")))
sketch1.addConstraint(Sketcher.Constraint("Angle", 35, Q("55.2 deg")))
sketch1.addConstraint(Sketcher.Constraint("Radius", 2, 4.33635))
sketch1.addConstraint(Sketcher.Constraint("Radius", 4, 1.69635))
sketch1.addConstraint(Sketcher.Constraint("DistanceY", -1, 1, 12, 3, 3.175))
sketch1.addConstraint(Sketcher.Constraint("DistanceY", 16, 3, -1, 1, 1.445))
sketch1.addConstraint(Sketcher.Constraint("DistanceY", -1, 1, 8, 3, 4.574599))
sketch1.addConstraint(Sketcher.Constraint("DistanceX", 9, 2, -1, 1, 9.078299))
sketch1.addConstraint(Sketcher.Constraint("DistanceY", -1, 1, 12, 1, 2.650799))
sketch1.addConstraint(Sketcher.Constraint("DistanceX", 4, 3, -1, 1, 6.039209))
sketch1.addConstraint(Sketcher.Constraint("DistanceY", 34, 3, -1, 1, 7.98028))
sketch1.addConstraint(Sketcher.Constraint("DistanceX", 4, 1, -1, 1, 5.042119))
pad1 = doc.addObject("PartDesign::Pad", "Pad")
body.addObject(pad1)
pad1.Profile = sketch1
pad1.Length = 2.9

sketch2 = doc.addObject("Sketcher::SketchObject", "Sketch001")
body.addObject(sketch2)
sketch2.AttachmentSupport = (doc.XZ_Plane, [""])
sketch2.MapMode = "FlatFace"
sketch2.addGeometry(Part.LineSegment(Vector(8.7, 0, 0), Vector(14.6, 0, 0)), False)
sketch2.addGeometry(Part.LineSegment(Vector(14.6, 0, 0), Vector(14.6, 2.9, 0)), False)
sketch2.addGeometry(Part.LineSegment(Vector(14.6, 2.9, 0), Vector(8.7, 2.9, 0)), False)
sketch2.addGeometry(Part.ArcOfCircle(Part.Circle(Vector(8.7, -3.5, 0), Vector(0, 0, 1), 6.4), math.radians(63), math.radians(90)), False)
sketch2.addGeometry(Part.LineSegment(Vector(11.7, 2.2, 0), Vector(11.7, 0.7, 0)), False)
sketch2.addGeometry(Part.ArcOfCircle(Part.Circle(Vector(8.7, 6.4, 0), Vector(0, 0, 1), 6.4), math.radians(-90), math.radians(-63)), False)
sketch2.addConstraint(Sketcher.Constraint("Coincident", 0, 2, 1, 1))
sketch2.addConstraint(Sketcher.Constraint("Coincident", 1, 2, 2, 1))
sketch2.addConstraint(Sketcher.Constraint("Tangent", 2, 2, 3, 2))
sketch2.addConstraint(Sketcher.Constraint("Coincident", 3, 1, 4, 1))
sketch2.addConstraint(Sketcher.Constraint("Coincident", 4, 2, 5, 2))
sketch2.addConstraint(Sketcher.Constraint("Tangent", 5, 1, 0, 1))
sketch2.addConstraint(Sketcher.Constraint("Horizontal", 0))
sketch2.addConstraint(Sketcher.Constraint("Vertical", 1))
sketch2.addConstraint(Sketcher.Constraint("Horizontal", 2))
sketch2.addConstraint(Sketcher.Constraint("Vertical", 4))
sketch2.addConstraint(Sketcher.Constraint("Equal", 3, 5))
sketch2.addConstraint(Sketcher.Constraint("PointOnObject", 0, 2, -1))
sketch2.addConstraint(Sketcher.Constraint("Vertical", 3, 3, 5, 3))
sketch2.addConstraint(Sketcher.Constraint("Radius", 3, 6.4))
sketch2.addConstraint(Sketcher.Constraint("DistanceY", 1, 1, 1, 2, 2.9))
sketch2.addConstraint(Sketcher.Constraint("DistanceY", 4, 2, 4, 1, 1.5))
sketch2.addConstraint(Sketcher.Constraint("DistanceX", -1, 1, 3, 1, 11.65))
sketch2.addConstraint(Sketcher.Constraint("DistanceX", 0, 1, 0, 2, 5.820653))
groove = doc.addObject("PartDesign::Groove", "Groove")
body.addObject(groove)
groove.Profile = sketch2
groove.ReferenceAxis = (sketch2, ["V_Axis"])
groove.Angle = 360

sketch3 = doc.addObject("Sketcher::SketchObject", "Sketch002")
body.addObject(sketch3)
sketch3.AttachmentSupport = (doc.XY_Plane, [""])
sketch3.MapMode = "FlatFace"
sketch3.addGeometry(Part.Circle(Vector(0, 0, 0), Vector(0, 0, 1), 6), False)
sketch3.addConstraint(Sketcher.Constraint("Coincident", 0, 3, -1, 1))
sketch3.addConstraint(Sketcher.Constraint("Diameter", 0, 13.0))
pad2 = doc.addObject("PartDesign::Pad", "Pad001")
body.addObject(pad2)
pad2.Profile = sketch3
pad2.Length = 12

sketch4 = doc.addObject("Sketcher::SketchObject", "Sketch003")
body.addObject(sketch4)
sketch4.AttachmentSupport = (doc.XY_Plane, [""])
sketch4.MapMode = "FlatFace"
sketch4.addGeometry(Part.Circle(Vector(0, 0, 0), Vector(0, 0, 1), 3), False)
sketch4.addConstraint(Sketcher.Constraint("Coincident", 0, 3, -1, 1))
sketch4.addConstraint(Sketcher.Constraint("Diameter", 0, 6.0))
pocket1 = doc.addObject("PartDesign::Pocket", "Pocket")
body.addObject(pocket1)
pocket1.Profile = sketch4
pocket1.Type = "ThroughAll"
pocket1.Midplane = True

doc.recompute()
